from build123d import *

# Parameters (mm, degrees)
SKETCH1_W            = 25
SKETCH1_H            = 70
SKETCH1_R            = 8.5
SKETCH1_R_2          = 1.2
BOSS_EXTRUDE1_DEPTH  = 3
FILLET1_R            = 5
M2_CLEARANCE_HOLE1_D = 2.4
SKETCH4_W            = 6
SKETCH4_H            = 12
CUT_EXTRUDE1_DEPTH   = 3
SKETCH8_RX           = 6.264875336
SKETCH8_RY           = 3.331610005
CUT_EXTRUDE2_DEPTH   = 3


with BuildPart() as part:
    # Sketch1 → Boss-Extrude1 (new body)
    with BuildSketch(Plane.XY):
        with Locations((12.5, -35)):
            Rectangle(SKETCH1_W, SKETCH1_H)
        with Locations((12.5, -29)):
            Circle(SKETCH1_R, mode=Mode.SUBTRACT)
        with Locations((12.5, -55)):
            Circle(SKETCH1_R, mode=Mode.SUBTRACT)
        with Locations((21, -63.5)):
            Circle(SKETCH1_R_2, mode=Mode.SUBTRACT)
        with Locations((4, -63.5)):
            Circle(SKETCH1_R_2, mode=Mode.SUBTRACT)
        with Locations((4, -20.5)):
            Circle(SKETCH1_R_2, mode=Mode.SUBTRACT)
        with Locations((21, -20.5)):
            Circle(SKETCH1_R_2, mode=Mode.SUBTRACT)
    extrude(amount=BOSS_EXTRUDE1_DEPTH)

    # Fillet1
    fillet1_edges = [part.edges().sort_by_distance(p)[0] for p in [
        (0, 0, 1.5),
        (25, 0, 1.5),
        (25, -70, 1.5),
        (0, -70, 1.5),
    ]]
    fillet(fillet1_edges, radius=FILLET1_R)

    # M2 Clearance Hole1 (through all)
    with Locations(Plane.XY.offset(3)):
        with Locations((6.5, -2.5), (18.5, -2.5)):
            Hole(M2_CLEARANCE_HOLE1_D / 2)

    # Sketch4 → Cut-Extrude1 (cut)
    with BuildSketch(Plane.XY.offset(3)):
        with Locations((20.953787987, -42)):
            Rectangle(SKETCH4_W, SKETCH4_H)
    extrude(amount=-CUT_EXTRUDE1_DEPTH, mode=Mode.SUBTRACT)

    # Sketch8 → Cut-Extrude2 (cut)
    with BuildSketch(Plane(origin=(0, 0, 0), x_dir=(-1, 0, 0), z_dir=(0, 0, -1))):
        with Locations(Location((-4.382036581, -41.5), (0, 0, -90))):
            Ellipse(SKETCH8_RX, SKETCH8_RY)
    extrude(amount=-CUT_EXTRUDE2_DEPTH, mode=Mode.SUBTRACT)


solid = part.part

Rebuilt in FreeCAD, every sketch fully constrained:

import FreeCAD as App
import Part
import Sketcher


def edges_at(feature, points):
    """Names of the edges that pass closest to the given points."""
    edges = feature.Shape.Edges
    near = lambda p: min(range(len(edges)), key=lambda i: edges[i].distToShape(Part.Vertex(*p))[0])
    return sorted({f"Edge{near(p) + 1}" for p in points})

doc = App.newDocument("Part")
body = doc.addObject("PartDesign::Body", "Body")

# Sketch on XY plane
sketch1 = body.newObject("Sketcher::SketchObject", "Sketch")
sketch1.AttachmentSupport = (doc.getObject("XY_Plane"), [""])
sketch1.MapMode = "FlatFace"
sketch1.addGeometry(Part.LineSegment(App.Vector(0, 0, 0), App.Vector(0, -70, 0)), False)
sketch1.addGeometry(Part.LineSegment(App.Vector(0, -70, 0), App.Vector(25, -70, 0)), False)
sketch1.addGeometry(Part.LineSegment(App.Vector(25, -70, 0), App.Vector(25, 0, 0)), False)
sketch1.addGeometry(Part.LineSegment(App.Vector(25, 0, 0), App.Vector(0, 0, 0)), False)
sketch1.addGeometry(Part.Circle(App.Vector(4, -63.5, 0), App.Vector(0, 0, 1), 1.2), False)
sketch1.addGeometry(Part.Circle(App.Vector(12.5, -55, 0), App.Vector(0, 0, 1), 8.5), False)
sketch1.addGeometry(Part.Circle(App.Vector(21, -63.5, 0), App.Vector(0, 0, 1), 1.2), False)
sketch1.addGeometry(Part.Circle(App.Vector(4, -20.5, 0), App.Vector(0, 0, 1), 1.2), False)
sketch1.addGeometry(Part.Circle(App.Vector(12.5, -29, 0), App.Vector(0, 0, 1), 8.5), False)
sketch1.addGeometry(Part.Circle(App.Vector(21, -20.5, 0), App.Vector(0, 0, 1), 1.2), False)
sketch1.addConstraint(Sketcher.Constraint("Coincident", 0, 2, 1, 1))
sketch1.addConstraint(Sketcher.Constraint("Coincident", 1, 2, 2, 1))
sketch1.addConstraint(Sketcher.Constraint("Coincident", 2, 2, 3, 1))
sketch1.addConstraint(Sketcher.Constraint("Coincident", 3, 2, 0, 1))
sketch1.addConstraint(Sketcher.Constraint("Vertical", 0))
sketch1.addConstraint(Sketcher.Constraint("Horizontal", 1))
sketch1.addConstraint(Sketcher.Constraint("Vertical", 2))
sketch1.addConstraint(Sketcher.Constraint("Horizontal", 3))
sketch1.addConstraint(Sketcher.Constraint("Coincident", 3, 2, -1, 1))
sketch1.addConstraint(Sketcher.Constraint("Equal", 4, 6))
sketch1.addConstraint(Sketcher.Constraint("Equal", 6, 7))
sketch1.addConstraint(Sketcher.Constraint("Equal", 5, 8))
sketch1.addConstraint(Sketcher.Constraint("Equal", 7, 9))
sketch1.addConstraint(Sketcher.Constraint("Horizontal", 4, 3, 6, 3))
sketch1.addConstraint(Sketcher.Constraint("Horizontal", 7, 3, 9, 3))
sketch1.addConstraint(Sketcher.Constraint("Vertical", 4, 3, 7, 3))
sketch1.addConstraint(Sketcher.Constraint("Vertical", 5, 3, 8, 3))
sketch1.addConstraint(Sketcher.Constraint("Vertical", 6, 3, 9, 3))
sketch1.addConstraint(Sketcher.Constraint("Diameter", 5, 17.0))
sketch1.addConstraint(Sketcher.Constraint("Diameter", 4, 2.4))
sketch1.addConstraint(Sketcher.Constraint("DistanceX", 1, 1, 1, 2, 25.0))
sketch1.addConstraint(Sketcher.Constraint("DistanceY", 0, 2, 0, 1, 70.0))
sketch1.addConstraint(Sketcher.Constraint("DistanceX", -1, 1, 4, 3, 4.0))
sketch1.addConstraint(Sketcher.Constraint("DistanceY", 5, 3, -1, 1, 55.0))
sketch1.addConstraint(Sketcher.Constraint("DistanceX", -1, 1, 6, 3, 21.0))
sketch1.addConstraint(Sketcher.Constraint("DistanceY", 8, 3, -1, 1, 29.0))
sketch1.addConstraint(Sketcher.Constraint("DistanceY", 4, 3, 7, 3, 43.0))
sketch1.addConstraint(Sketcher.Constraint("DistanceY", 4, 3, -1, 1, 63.5))
sketch1.addConstraint(Sketcher.Constraint("DistanceX", -1, 1, 5, 3, 12.5))
pad1 = body.newObject("PartDesign::Pad", "Pad")
pad1.Profile = sketch1
pad1.Length = 3
doc.recompute()

fillet = body.newObject("PartDesign::Fillet", "Fillet")
fillet.Base = (pad1, edges_at(pad1, [
    (0, 0, 1.5),
    (25, 0, 1.5),
    (25, -70, 1.5),
    (0, -70, 1.5),
]))
fillet.Radius = 5

# Sketch on XY plane
sketch2 = body.newObject("Sketcher::SketchObject", "Sketch001")
sketch2.AttachmentSupport = (doc.getObject("XY_Plane"), [""])
sketch2.MapMode = "FlatFace"
sketch2.AttachmentOffset = App.Placement(App.Vector(0, 0, 3), App.Rotation())
sketch2.addGeometry(Part.Circle(App.Vector(6.5, -2.5, 0), App.Vector(0, 0, 1), 1.2), False)
sketch2.addGeometry(Part.Circle(App.Vector(18.5, -2.5, 0), App.Vector(0, 0, 1), 1.2), False)
sketch2.addConstraint(Sketcher.Constraint("Equal", 0, 1))
sketch2.addConstraint(Sketcher.Constraint("Horizontal", 0, 3, 1, 3))
sketch2.addConstraint(Sketcher.Constraint("Diameter", 0, 2.4))
sketch2.addConstraint(Sketcher.Constraint("DistanceX", 0, 3, 1, 3, 12.0))
sketch2.addConstraint(Sketcher.Constraint("DistanceX", -1, 1, 0, 3, 6.5))
sketch2.addConstraint(Sketcher.Constraint("DistanceY", 0, 3, -1, 1, 2.5))
doc.recompute()
hole = body.newObject("PartDesign::Hole", "Hole")
hole.Profile = sketch2
hole.ThreadType = "None"
hole.Diameter = 2.4
hole.DepthType = "ThroughAll"

# Sketch on XY plane
sketch3 = body.newObject("Sketcher::SketchObject", "Sketch002")
sketch3.AttachmentSupport = (doc.getObject("XY_Plane"), [""])
sketch3.MapMode = "FlatFace"
sketch3.AttachmentOffset = App.Placement(App.Vector(0, 0, 3), App.Rotation())
sketch3.addGeometry(Part.LineSegment(App.Vector(18, -36, 0), App.Vector(18, -48, 0)), False)
sketch3.addGeometry(Part.LineSegment(App.Vector(18, -48, 0), App.Vector(24, -48, 0)), False)
sketch3.addGeometry(Part.LineSegment(App.Vector(24, -48, 0), App.Vector(24, -36, 0)), False)
sketch3.addGeometry(Part.LineSegment(App.Vector(24, -36, 0), App.Vector(18, -36, 0)), False)
sketch3.addConstraint(Sketcher.Constraint("Coincident", 0, 2, 1, 1))
sketch3.addConstraint(Sketcher.Constraint("Coincident", 1, 2, 2, 1))
sketch3.addConstraint(Sketcher.Constraint("Coincident", 2, 2, 3, 1))
sketch3.addConstraint(Sketcher.Constraint("Coincident", 3, 2, 0, 1))
sketch3.addConstraint(Sketcher.Constraint("Vertical", 0))
sketch3.addConstraint(Sketcher.Constraint("Horizontal", 1))
sketch3.addConstraint(Sketcher.Constraint("Vertical", 2))
sketch3.addConstraint(Sketcher.Constraint("Horizontal", 3))
sketch3.addConstraint(Sketcher.Constraint("DistanceX", 1, 1, 1, 2, 6.0))
sketch3.addConstraint(Sketcher.Constraint("DistanceY", 0, 2, 0, 1, 12.0))
sketch3.addConstraint(Sketcher.Constraint("DistanceY", 0, 2, -1, 1, 48.0))
sketch3.addConstraint(Sketcher.Constraint("DistanceX", -1, 1, 0, 2, 17.953788))
pocket1 = body.newObject("PartDesign::Pocket", "Pocket")
pocket1.Profile = sketch3
pocket1.Length = 3

# Sketch on XY plane
sketch4 = body.newObject("Sketcher::SketchObject", "Sketch003")
sketch4.AttachmentSupport = (doc.getObject("XY_Plane"), [""])
sketch4.MapMode = "FlatFace"
sketch4.addGeometry(Part.Ellipse(App.Vector(4.382037, -47.764875, 0), App.Vector(7.713647, -41.5, 0), App.Vector(4.382037, -41.5, 0)), False)
sketch4.addConstraint(Sketcher.Constraint("Block", 0))
pocket2 = body.newObject("PartDesign::Pocket", "Pocket001")
pocket2.Profile = sketch4
pocket2.Length = 3
pocket2.Reversed = True

doc.recompute()
